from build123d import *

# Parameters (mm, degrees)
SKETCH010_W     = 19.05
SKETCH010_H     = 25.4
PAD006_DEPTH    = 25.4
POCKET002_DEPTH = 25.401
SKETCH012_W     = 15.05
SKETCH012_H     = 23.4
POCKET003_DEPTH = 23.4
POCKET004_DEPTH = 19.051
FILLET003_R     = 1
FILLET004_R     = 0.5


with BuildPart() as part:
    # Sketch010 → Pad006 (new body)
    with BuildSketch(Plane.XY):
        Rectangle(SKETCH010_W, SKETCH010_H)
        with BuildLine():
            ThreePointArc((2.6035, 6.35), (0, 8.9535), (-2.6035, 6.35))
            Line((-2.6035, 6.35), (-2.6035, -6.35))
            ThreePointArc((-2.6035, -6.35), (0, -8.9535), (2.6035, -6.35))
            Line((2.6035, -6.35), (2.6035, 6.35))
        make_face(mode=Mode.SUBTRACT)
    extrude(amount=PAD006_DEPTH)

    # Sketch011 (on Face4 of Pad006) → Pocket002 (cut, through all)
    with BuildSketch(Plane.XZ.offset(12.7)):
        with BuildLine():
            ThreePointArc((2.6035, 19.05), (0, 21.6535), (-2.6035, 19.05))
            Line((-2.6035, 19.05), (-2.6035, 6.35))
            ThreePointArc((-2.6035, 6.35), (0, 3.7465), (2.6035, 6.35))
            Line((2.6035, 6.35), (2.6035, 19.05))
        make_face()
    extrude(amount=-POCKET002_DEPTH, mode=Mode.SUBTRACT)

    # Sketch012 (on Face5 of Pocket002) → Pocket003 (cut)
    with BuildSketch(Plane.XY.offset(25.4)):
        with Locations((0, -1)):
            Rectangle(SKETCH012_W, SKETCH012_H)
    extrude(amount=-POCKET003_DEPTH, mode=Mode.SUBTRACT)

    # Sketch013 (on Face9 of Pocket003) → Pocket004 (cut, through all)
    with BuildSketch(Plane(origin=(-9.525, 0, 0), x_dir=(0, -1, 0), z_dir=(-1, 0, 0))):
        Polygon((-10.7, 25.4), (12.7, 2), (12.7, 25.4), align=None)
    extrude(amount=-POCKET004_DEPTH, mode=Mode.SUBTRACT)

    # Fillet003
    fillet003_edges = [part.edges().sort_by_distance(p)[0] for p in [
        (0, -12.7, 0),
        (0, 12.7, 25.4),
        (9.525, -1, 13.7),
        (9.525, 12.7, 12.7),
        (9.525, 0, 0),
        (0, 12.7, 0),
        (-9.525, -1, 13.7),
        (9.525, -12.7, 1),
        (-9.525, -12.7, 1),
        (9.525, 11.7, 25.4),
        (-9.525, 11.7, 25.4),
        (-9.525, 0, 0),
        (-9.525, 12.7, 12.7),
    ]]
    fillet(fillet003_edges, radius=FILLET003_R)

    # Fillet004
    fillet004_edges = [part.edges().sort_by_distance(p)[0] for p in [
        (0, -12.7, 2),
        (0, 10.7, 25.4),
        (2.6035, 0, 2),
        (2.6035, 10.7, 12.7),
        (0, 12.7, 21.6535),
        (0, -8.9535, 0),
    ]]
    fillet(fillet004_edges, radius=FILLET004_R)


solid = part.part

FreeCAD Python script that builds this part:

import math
import FreeCAD as App
import Part
import Sketcher

V = App.Vector
Q = App.Units.Quantity


def edges_at(feature, points):
    """Names of the edges that pass closest to the given points."""
    edges = feature.Shape.Edges
    near = lambda p: min(range(len(edges)), key=lambda i: edges[i].distToShape(Part.Vertex(*p))[0])
    return sorted({f"Edge{near(p) + 1}" for p in points})


def add_polygon(sketch, points):
    """Adds a closed chain of lines whose ends are joined by coincident constraints."""
    first, n = sketch.GeometryCount, len(points)
    for a, b in zip(points, points[1:] + points[:1]):
        sketch.addGeometry(Part.LineSegment(App.Vector(*a, 0), App.Vector(*b, 0)), False)
    for i in range(n):
        sketch.addConstraint(Sketcher.Constraint("Coincident", first + i, 2, first + (i + 1) % n, 1))

doc = App.newDocument("Part")
body = doc.addObject("PartDesign::Body", "Body")

# Sketch on XY plane
sketch1 = body.newObject("Sketcher::SketchObject", "Sketch")
sketch1.AttachmentSupport = (doc.getObject("XY_Plane"), [""])
sketch1.MapMode = "FlatFace"
add_polygon(sketch1, [(-9.5, 12.7), (-9.5, -12.7), (9.5, -12.7), (9.5, 12.7)])  # lines 0-3
sketch1.addGeometry(Part.ArcOfCircle(Part.Circle(V(0, 6.3, 0), V(0, 0, 1), 2.6), math.radians(0), math.radians(180)), False)  # 4
sketch1.addGeometry(Part.LineSegment(V(2.6, 6.3, 0), V(2.6, -6.3, 0)), False)  # 5
sketch1.addGeometry(Part.ArcOfCircle(Part.Circle(V(0, -6.3, 0), V(0, 0, 1), 2.6), math.radians(180), math.radians(360)), False)  # 6
sketch1.addGeometry(Part.LineSegment(V(-2.6, -6.3, 0), V(-2.6, 6.3, 0)), False)  # 7
sketch1.addConstraint(Sketcher.Constraint("Tangent", 4, 1, 5, 1))
sketch1.addConstraint(Sketcher.Constraint("Tangent", 5, 2, 6, 2))
sketch1.addConstraint(Sketcher.Constraint("Tangent", 6, 1, 7, 1))
sketch1.addConstraint(Sketcher.Constraint("Tangent", 7, 2, 4, 2))
sketch1.addConstraint(Sketcher.Constraint("Vertical", 0))
sketch1.addConstraint(Sketcher.Constraint("Horizontal", 1))
sketch1.addConstraint(Sketcher.Constraint("Vertical", 2))
sketch1.addConstraint(Sketcher.Constraint("Horizontal", 3))
sketch1.addConstraint(Sketcher.Constraint("Vertical", 5))
sketch1.addConstraint(Sketcher.Constraint("Vertical", 7))
sketch1.addConstraint(Sketcher.Constraint("Symmetric", 4, 3, 6, 3, -1, 1))
sketch1.addConstraint(Sketcher.Constraint("Symmetric", 0, 2, 2, 2, -1, 1))
sketch1.addConstraint(Sketcher.Constraint("DistanceY", 0, 2, 0, 1, Q("1 in")))
sketch1.addConstraint(Sketcher.Constraint("DistanceY", 5, 2, 5, 1, Q("0.5 in")))
sketch1.addConstraint(Sketcher.Constraint("DistanceX", 1, 1, 1, 2, Q("0.75 in")))
sketch1.addConstraint(Sketcher.Constraint("Radius", 4, Q("0.1025 in")))
pad1 = body.newObject("PartDesign::Pad", "Pad")
pad1.Profile = sketch1
pad1.Length = Q("1 in")

# Sketch on XZ plane
sketch2 = body.newObject("Sketcher::SketchObject", "Sketch001")
sketch2.AttachmentSupport = (doc.getObject("XZ_Plane"), [""])
sketch2.MapMode = "FlatFace"
sketch2.AttachmentOffset = App.Placement(V(0, 0, 0.5 * 25.4), App.Rotation())
sketch2.addGeometry(Part.ArcOfCircle(Part.Circle(V(0, 19.1, 0), V(0, 0, 1), 2.6), math.radians(0), math.radians(180)), False)
sketch2.addGeometry(Part.LineSegment(V(-2.6, 19.1, 0), V(-2.6, 6.3, 0)), False)
sketch2.addGeometry(Part.ArcOfCircle(Part.Circle(V(0, 6.3, 0), V(0, 0, 1), 2.6), math.radians(180), math.radians(360)), False)
sketch2.addGeometry(Part.LineSegment(V(2.6, 6.3, 0), V(2.6, 19.1, 0)), False)
sketch2.addConstraint(Sketcher.Constraint("Tangent", 0, 2, 1, 1))
sketch2.addConstraint(Sketcher.Constraint("Tangent", 1, 2, 2, 1))
sketch2.addConstraint(Sketcher.Constraint("Tangent", 2, 2, 3, 1))
sketch2.addConstraint(Sketcher.Constraint("Tangent", 3, 2, 0, 1))
sketch2.addConstraint(Sketcher.Constraint("Vertical", 1))
sketch2.addConstraint(Sketcher.Constraint("Vertical", 3))
sketch2.addConstraint(Sketcher.Constraint("PointOnObject", 0, 3, -2))
sketch2.addConstraint(Sketcher.Constraint("DistanceY", 1, 2, 1, 1, Q("0.5 in")))
sketch2.addConstraint(Sketcher.Constraint("Radius", 0, Q("0.1025 in")))
sketch2.addConstraint(Sketcher.Constraint("DistanceY", -1, 1, 0, 3, Q("0.75 in")))
pocket1 = body.newObject("PartDesign::Pocket", "Pocket")
pocket1.Profile = sketch2
pocket1.Type = "ThroughAll"

# Sketch on XY plane
sketch3 = body.newObject("Sketcher::SketchObject", "Sketch002")
sketch3.AttachmentSupport = (doc.getObject("XY_Plane"), [""])
sketch3.MapMode = "FlatFace"
sketch3.AttachmentOffset = App.Placement(V(0, 0, 1 * 25.4), App.Rotation())
add_polygon(sketch3, [(-8, 11), (-8, -13), (8, -13), (8, 11)])  # lines 0-3
sketch3.addConstraint(Sketcher.Constraint("Vertical", 0))
sketch3.addConstraint(Sketcher.Constraint("Horizontal", 1))
sketch3.addConstraint(Sketcher.Constraint("Vertical", 2))
sketch3.addConstraint(Sketcher.Constraint("Horizontal", 3))
sketch3.addConstraint(Sketcher.Constraint("DistanceY", 0, 2, -1, 1, Q("0.5 in")))
sketch3.addConstraint(Sketcher.Constraint("DistanceX", 1, 1, 1, 2, Q("15.05 mm")))
sketch3.addConstraint(Sketcher.Constraint("DistanceY", 0, 2, 0, 1, Q("23.4 mm")))
sketch3.addConstraint(Sketcher.Constraint("DistanceX", 0, 2, -1, 1, Q("7.525 mm")))
pocket2 = body.newObject("PartDesign::Pocket", "Pocket001")
pocket2.Profile = sketch3
pocket2.Length = 23.4

# Sketch on YZ plane
sketch4 = body.newObject("Sketcher::SketchObject", "Sketch003")
sketch4.AttachmentSupport = (doc.getObject("YZ_Plane"), [""])
sketch4.MapMode = "FlatFace"
sketch4.AttachmentOffset = App.Placement(V(0, 0, -0.375 * 25.4), App.Rotation())
add_polygon(sketch4, [(11, 25), (-13, 2), (-13, 25)])  # lines 0-2
sketch4.addConstraint(Sketcher.Constraint("Vertical", 1))
sketch4.addConstraint(Sketcher.Constraint("Horizontal", 2))
sketch4.addConstraint(Sketcher.Constraint("Equal", 2, 1))
sketch4.addConstraint(Sketcher.Constraint("DistanceY", -1, 1, 1, 2, Q("1 in")))
sketch4.addConstraint(Sketcher.Constraint("DistanceX", 0, 2, -1, 1, Q("0.5 in")))
sketch4.addConstraint(Sketcher.Constraint("DistanceX", 2, 1, 2, 2, Q("23.4 mm")))
pocket3 = body.newObject("PartDesign::Pocket", "Pocket002")
pocket3.Profile = sketch4
pocket3.Type = "ThroughAll"
pocket3.Reversed = True
doc.recompute()

fillet = body.newObject("PartDesign::Fillet", "Fillet")
fillet.Base = (pocket3, edges_at(pocket3, [
    (0, -12.7, 0),
    (0, 12.7, 25.4),
    (9.525, -1, 13.7),
    (9.525, 12.7, 12.7),
    (9.525, 0, 0),
    (0, 12.7, 0),
    (-9.525, -1, 13.7),
    (9.525, -12.7, 1),
    (-9.525, -12.7, 1),
    (9.525, 11.7, 25.4),
    (-9.525, 11.7, 25.4),
    (-9.525, 0, 0),
    (-9.525, 12.7, 12.7),
]))
fillet.Radius = 1
doc.recompute()

fillet2 = body.newObject("PartDesign::Fillet", "Fillet001")
fillet2.Base = (fillet, edges_at(fillet, [
    (0, -12.7, 2),
    (0, 10.7, 25.4),
    (2.603, 0, 2),
    (2.603, 10.7, 12.7),
    (0, 12.7, 21.654),
    (0, -8.954, 0),
]))
fillet2.Radius = 0.5

doc.recompute()
